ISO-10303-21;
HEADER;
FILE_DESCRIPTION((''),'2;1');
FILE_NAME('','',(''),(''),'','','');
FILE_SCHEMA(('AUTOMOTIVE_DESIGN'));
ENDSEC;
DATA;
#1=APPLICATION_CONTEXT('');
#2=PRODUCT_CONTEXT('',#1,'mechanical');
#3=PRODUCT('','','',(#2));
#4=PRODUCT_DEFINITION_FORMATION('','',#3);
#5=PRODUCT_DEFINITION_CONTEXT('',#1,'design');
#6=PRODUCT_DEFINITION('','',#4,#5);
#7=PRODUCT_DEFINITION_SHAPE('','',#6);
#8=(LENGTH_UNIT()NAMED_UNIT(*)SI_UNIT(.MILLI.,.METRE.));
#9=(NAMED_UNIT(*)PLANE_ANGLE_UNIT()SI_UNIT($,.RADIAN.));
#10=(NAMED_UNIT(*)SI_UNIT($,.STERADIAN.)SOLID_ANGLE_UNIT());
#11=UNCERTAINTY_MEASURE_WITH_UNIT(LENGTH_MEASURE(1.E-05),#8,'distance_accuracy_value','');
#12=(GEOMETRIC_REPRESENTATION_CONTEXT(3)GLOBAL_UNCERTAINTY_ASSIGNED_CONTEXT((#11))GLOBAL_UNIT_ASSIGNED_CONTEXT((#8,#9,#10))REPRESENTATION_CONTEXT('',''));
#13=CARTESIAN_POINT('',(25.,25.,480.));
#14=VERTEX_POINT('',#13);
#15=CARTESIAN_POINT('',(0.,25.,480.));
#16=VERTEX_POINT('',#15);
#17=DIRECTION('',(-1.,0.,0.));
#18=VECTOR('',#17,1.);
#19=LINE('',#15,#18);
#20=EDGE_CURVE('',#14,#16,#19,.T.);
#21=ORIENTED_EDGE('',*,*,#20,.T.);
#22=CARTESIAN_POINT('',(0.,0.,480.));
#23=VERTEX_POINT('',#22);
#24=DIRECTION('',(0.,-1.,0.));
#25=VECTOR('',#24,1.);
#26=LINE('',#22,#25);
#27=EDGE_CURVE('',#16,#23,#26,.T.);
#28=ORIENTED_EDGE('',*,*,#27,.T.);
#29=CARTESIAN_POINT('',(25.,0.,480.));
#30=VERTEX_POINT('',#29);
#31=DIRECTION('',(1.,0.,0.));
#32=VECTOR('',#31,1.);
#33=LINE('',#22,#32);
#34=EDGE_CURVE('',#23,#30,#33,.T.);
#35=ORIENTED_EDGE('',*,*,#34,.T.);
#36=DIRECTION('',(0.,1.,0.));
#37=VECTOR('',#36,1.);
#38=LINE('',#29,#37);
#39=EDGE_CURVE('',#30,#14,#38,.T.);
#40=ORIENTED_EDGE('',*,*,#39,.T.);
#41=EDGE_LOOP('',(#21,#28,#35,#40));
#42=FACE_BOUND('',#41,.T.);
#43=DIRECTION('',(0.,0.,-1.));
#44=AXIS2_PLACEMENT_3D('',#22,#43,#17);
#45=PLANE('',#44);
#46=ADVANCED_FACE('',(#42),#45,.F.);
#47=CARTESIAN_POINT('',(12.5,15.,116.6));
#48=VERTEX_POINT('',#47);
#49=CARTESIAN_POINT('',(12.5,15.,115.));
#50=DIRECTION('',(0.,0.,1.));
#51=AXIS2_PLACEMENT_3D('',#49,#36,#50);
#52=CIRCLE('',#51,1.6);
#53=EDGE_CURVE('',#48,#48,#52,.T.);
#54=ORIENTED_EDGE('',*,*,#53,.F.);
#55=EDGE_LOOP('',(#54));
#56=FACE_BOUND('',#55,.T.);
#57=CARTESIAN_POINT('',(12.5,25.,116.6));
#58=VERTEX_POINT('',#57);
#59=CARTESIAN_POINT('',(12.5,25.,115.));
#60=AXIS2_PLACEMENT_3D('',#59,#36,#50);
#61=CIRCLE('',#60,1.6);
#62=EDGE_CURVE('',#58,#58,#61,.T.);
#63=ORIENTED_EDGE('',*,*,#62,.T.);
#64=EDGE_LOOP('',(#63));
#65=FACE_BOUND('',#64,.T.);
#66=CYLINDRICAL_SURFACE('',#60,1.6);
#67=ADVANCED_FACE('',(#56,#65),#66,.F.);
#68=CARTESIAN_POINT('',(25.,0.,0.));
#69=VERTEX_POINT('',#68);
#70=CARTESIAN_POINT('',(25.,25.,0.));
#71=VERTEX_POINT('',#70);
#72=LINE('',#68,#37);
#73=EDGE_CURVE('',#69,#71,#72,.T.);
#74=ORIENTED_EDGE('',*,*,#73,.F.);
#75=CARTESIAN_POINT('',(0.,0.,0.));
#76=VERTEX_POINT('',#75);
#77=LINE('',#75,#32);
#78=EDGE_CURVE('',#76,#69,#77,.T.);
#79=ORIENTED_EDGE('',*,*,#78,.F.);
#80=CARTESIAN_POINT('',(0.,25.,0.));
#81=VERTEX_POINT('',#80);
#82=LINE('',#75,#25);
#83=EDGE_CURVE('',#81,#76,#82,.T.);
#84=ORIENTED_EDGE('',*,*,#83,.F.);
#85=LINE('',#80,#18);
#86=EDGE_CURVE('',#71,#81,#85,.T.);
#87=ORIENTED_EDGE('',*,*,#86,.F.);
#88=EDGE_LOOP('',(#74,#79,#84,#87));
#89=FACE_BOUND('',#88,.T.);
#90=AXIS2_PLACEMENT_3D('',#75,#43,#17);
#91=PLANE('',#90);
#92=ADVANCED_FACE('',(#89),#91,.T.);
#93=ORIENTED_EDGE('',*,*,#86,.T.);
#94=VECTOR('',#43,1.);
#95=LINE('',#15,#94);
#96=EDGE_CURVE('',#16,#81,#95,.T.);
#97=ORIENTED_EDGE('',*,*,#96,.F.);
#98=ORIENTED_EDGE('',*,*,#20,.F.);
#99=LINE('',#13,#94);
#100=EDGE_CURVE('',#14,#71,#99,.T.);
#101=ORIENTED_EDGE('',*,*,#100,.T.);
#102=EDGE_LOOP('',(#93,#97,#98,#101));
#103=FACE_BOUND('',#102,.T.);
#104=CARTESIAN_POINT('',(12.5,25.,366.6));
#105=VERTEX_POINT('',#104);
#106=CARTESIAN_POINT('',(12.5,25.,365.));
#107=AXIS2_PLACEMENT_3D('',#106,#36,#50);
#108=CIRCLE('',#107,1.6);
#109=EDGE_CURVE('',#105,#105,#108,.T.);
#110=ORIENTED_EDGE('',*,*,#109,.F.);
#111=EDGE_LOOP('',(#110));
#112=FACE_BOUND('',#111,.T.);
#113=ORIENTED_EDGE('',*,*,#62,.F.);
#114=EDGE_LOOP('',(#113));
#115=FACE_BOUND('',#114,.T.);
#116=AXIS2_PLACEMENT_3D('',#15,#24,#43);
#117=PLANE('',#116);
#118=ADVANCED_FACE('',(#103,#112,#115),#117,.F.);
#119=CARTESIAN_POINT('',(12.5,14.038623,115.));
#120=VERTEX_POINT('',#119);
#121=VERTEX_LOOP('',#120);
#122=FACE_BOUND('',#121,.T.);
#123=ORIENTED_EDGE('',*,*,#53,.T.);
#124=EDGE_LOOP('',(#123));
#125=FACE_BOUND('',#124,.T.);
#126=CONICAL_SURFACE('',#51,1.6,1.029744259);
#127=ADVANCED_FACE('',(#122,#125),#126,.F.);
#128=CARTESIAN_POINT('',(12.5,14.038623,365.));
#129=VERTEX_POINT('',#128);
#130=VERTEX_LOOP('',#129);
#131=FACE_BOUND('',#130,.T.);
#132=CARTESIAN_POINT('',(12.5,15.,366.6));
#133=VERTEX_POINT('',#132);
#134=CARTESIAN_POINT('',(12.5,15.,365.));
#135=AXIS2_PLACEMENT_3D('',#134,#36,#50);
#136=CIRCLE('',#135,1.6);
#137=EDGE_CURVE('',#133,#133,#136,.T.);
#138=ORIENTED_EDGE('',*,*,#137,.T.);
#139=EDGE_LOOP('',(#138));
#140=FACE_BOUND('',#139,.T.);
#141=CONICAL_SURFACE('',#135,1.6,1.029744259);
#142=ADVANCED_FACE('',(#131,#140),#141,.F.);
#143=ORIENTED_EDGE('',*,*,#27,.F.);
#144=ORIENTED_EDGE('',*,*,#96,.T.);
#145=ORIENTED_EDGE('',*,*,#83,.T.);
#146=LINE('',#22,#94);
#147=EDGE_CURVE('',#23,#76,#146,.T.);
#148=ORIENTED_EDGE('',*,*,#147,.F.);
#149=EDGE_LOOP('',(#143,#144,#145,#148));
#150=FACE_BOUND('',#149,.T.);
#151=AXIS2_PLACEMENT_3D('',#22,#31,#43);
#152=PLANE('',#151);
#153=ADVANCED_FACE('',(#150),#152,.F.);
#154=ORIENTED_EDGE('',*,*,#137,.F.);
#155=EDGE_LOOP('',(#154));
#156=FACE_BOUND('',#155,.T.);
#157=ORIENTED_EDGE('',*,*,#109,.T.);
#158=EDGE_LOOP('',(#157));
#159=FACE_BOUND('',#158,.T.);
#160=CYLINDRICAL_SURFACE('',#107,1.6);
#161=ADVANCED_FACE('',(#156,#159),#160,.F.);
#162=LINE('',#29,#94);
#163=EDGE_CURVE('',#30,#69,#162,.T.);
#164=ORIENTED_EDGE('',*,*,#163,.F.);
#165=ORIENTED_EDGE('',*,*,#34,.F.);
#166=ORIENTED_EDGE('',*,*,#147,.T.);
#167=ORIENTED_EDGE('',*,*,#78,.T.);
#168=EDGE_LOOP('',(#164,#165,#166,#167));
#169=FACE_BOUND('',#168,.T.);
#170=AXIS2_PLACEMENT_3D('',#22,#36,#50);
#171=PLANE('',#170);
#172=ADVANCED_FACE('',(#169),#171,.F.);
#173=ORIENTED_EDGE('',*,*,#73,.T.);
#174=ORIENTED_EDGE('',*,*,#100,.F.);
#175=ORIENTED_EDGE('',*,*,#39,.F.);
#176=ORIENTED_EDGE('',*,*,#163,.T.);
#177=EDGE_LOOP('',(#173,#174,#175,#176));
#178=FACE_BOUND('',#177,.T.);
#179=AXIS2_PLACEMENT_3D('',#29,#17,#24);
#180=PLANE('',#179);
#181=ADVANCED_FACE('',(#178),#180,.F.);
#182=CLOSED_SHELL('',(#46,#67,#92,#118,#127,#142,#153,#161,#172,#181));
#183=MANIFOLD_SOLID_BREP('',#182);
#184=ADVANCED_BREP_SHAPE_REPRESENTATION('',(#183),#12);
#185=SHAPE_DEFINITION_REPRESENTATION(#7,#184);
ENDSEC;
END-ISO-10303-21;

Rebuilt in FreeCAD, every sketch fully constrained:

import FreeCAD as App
import Part
import Sketcher

V = App.Vector
Q = App.Units.Quantity

doc = App.newDocument("Part")
body = doc.addObject("PartDesign::Body", "Body")

# Sketch on XY plane
sketch1 = body.newObject("Sketcher::SketchObject", "Sketch")
sketch1.AttachmentSupport = (doc.getObject("XY_Plane"), [""])
sketch1.MapMode = "FlatFace"
sketch1.addGeometry([
    Part.LineSegment(V(0, 25, 0), V(0, 0, 0)),
    Part.LineSegment(V(0, 0, 0), V(25, 0, 0)),
    Part.LineSegment(V(25, 0, 0), V(25, 25, 0)),
    Part.LineSegment(V(25, 25, 0), V(0, 25, 0)),
], False)
sketch1.addConstraint([
    Sketcher.Constraint("Coincident", 0, 2, 1, 1),
    Sketcher.Constraint("Coincident", 1, 2, 2, 1),
    Sketcher.Constraint("Coincident", 2, 2, 3, 1),
    Sketcher.Constraint("Coincident", 3, 2, 0, 1),
    Sketcher.Constraint("Vertical", 0),
    Sketcher.Constraint("Horizontal", 1),
    Sketcher.Constraint("Vertical", 2),
    Sketcher.Constraint("Horizontal", 3),
    Sketcher.Constraint("Coincident", 0, 2, -1, 1),
    Sketcher.Constraint("Equal", 3, 0),
    Sketcher.Constraint("DistanceX", 1, 1, 1, 2, Q("25 mm")),
])
pad1 = body.newObject("PartDesign::Pad", "Pad")
pad1.Profile = sketch1
pad1.Length = 480

# Sketch on XZ plane
sketch2 = body.newObject("Sketcher::SketchObject", "Sketch001")
sketch2.AttachmentSupport = (doc.getObject("XZ_Plane"), [""])
sketch2.MapMode = "FlatFace"
sketch2.AttachmentOffset = App.Placement(V(0, 0, -25), App.Rotation())
sketch2.addGeometry([
    Part.Circle(V(12.5, 115, 0), V(0, 0, 1), 1.6),
    Part.Circle(V(12.5, 365, 0), V(0, 0, 1), 1.6),
], False)
sketch2.addConstraint([
    Sketcher.Constraint("Equal", 0, 1),
    Sketcher.Constraint("Vertical", 0, 3, 1, 3),
    Sketcher.Constraint("Diameter", 0, Q("3.2 mm")),
    Sketcher.Constraint("DistanceY", -1, 1, 0, 3, Q("115 mm")),
    Sketcher.Constraint("DistanceY", -1, 1, 1, 3, Q("365 mm")),
    Sketcher.Constraint("DistanceX", -1, 1, 0, 3, Q("12.5 mm")),
])
doc.recompute()
hole = body.newObject("PartDesign::Hole", "Hole")
hole.Profile = sketch2
hole.ThreadType = "None"
hole.Diameter = 3.2
hole.DepthType = "Dimension"
hole.Depth = 10
hole.DrillPoint = "Angled"
hole.DrillPointAngle = 118
hole.Reversed = True

doc.recompute()
